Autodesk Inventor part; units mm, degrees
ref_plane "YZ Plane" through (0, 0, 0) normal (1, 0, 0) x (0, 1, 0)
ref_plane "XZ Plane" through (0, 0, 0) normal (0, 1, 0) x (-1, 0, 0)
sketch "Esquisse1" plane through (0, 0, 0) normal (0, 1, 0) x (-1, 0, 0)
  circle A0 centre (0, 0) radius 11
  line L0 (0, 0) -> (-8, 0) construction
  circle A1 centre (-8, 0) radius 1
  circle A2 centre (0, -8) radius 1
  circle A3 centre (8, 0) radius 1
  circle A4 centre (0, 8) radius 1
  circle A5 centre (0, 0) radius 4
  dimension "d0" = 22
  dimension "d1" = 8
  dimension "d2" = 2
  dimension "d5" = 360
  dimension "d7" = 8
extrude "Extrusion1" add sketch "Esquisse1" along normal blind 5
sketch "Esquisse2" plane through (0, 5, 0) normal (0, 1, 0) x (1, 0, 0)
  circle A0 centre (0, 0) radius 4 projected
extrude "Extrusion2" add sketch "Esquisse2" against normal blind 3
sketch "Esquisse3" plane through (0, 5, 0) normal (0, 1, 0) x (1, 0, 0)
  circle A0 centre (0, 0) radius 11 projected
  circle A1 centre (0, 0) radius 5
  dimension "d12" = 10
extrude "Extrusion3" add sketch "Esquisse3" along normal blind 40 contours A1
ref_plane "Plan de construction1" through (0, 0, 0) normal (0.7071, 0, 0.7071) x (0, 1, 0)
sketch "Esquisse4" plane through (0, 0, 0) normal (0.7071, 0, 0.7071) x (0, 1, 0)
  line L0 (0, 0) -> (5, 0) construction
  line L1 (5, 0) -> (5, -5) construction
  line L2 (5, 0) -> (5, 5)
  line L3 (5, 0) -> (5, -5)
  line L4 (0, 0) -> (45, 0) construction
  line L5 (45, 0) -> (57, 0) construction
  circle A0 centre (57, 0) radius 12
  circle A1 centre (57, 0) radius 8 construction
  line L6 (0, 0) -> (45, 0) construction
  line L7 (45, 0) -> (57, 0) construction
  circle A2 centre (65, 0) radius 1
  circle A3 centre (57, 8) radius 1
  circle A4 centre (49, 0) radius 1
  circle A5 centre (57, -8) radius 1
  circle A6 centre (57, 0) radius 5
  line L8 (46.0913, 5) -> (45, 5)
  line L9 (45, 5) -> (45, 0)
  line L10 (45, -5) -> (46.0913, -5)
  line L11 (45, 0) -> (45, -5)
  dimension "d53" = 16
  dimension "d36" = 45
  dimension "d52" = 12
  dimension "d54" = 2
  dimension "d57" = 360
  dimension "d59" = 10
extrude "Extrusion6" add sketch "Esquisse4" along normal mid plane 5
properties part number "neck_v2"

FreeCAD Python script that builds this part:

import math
import FreeCAD as App
import Part
import Sketcher

doc = App.newDocument("Part")
body = doc.addObject("PartDesign::Body", "Body")

# Sketch on XZ plane
sketch1 = body.newObject("Sketcher::SketchObject", "Sketch")
sketch1.AttachmentSupport = (doc.getObject("XZ_Plane"), [""])
sketch1.MapMode = "FlatFace"
sketch1.addGeometry(Part.Circle(App.Vector(0, 0, 0), App.Vector(0, 0, 1), 11), False)
sketch1.addGeometry(Part.Circle(App.Vector(0, -8, 0), App.Vector(0, 0, 1), 1), False)
sketch1.addGeometry(Part.Circle(App.Vector(8, 0, 0), App.Vector(0, 0, 1), 1), False)
sketch1.addGeometry(Part.Circle(App.Vector(0, 0, 0), App.Vector(0, 0, 1), 4), False)
sketch1.addGeometry(Part.Circle(App.Vector(-8, 0, 0), App.Vector(0, 0, 1), 1), False)
sketch1.addGeometry(Part.Circle(App.Vector(0, 8, 0), App.Vector(0, 0, 1), 1), False)
sketch1.addConstraint(Sketcher.Constraint("Coincident", 0, 3, -1, 1))
sketch1.addConstraint(Sketcher.Constraint("Coincident", 3, 3, -1, 1))
sketch1.addConstraint(Sketcher.Constraint("Equal", 1, 2))
sketch1.addConstraint(Sketcher.Constraint("Equal", 2, 4))
sketch1.addConstraint(Sketcher.Constraint("Equal", 4, 5))
sketch1.addConstraint(Sketcher.Constraint("Symmetric", 2, 3, 4, 3, -1, 1))
sketch1.addConstraint(Sketcher.Constraint("Symmetric", 1, 3, 5, 3, -1, 1))
sketch1.addConstraint(Sketcher.Constraint("PointOnObject", 1, 3, -2))
sketch1.addConstraint(Sketcher.Constraint("PointOnObject", 2, 3, -1))
sketch1.addConstraint(Sketcher.Constraint("Diameter", 0, 22.0))
sketch1.addConstraint(Sketcher.Constraint("Diameter", 1, 2.0))
sketch1.addConstraint(Sketcher.Constraint("Diameter", 3, 8.0))
sketch1.addConstraint(Sketcher.Constraint("DistanceY", 1, 3, -1, 1, 8.0))
sketch1.addConstraint(Sketcher.Constraint("DistanceX", -1, 1, 2, 3, 8.0))
pad1 = body.newObject("PartDesign::Pad", "Pad")
pad1.Profile = sketch1
pad1.Length = 5
pad1.Reversed = True

# Sketch on XZ plane
sketch2 = body.newObject("Sketcher::SketchObject", "Sketch001")
sketch2.AttachmentSupport = (doc.getObject("XZ_Plane"), [""])
sketch2.MapMode = "FlatFace"
sketch2.AttachmentOffset = App.Placement(App.Vector(0, 0, -5), App.Rotation())
sketch2.addGeometry(Part.Circle(App.Vector(0, 0, 0), App.Vector(0, 0, 1), 4), False)
sketch2.addConstraint(Sketcher.Constraint("Coincident", 0, 3, -1, 1))
sketch2.addConstraint(Sketcher.Constraint("Diameter", 0, 8.0))
pad2 = body.newObject("PartDesign::Pad", "Pad001")
pad2.Profile = sketch2
pad2.Length = 3

# Sketch on XZ plane
sketch3 = body.newObject("Sketcher::SketchObject", "Sketch002")
sketch3.AttachmentSupport = (doc.getObject("XZ_Plane"), [""])
sketch3.MapMode = "FlatFace"
sketch3.AttachmentOffset = App.Placement(App.Vector(0, 0, -5), App.Rotation())
sketch3.addGeometry(Part.Circle(App.Vector(0, 0, 0), App.Vector(0, 0, 1), 5), False)
sketch3.addConstraint(Sketcher.Constraint("Coincident", 0, 3, -1, 1))
sketch3.addConstraint(Sketcher.Constraint("Diameter", 0, 10.0))
pad3 = body.newObject("PartDesign::Pad", "Pad002")
pad3.Profile = sketch3
pad3.Length = 40
pad3.Reversed = True

# Sketch on an angled plane
sketch4 = body.newObject("Sketcher::SketchObject", "Sketch003")
sketch4.Placement = App.Placement(App.Vector(0, 0, 0), App.Rotation(App.Vector(0, 1, 0), App.Vector(-0.707106781, 0, 0.707106781), App.Vector(0.707106781, 0, 0.707106781), "ZXY"))
sketch4.addGeometry(Part.ArcOfCircle(Part.Circle(App.Vector(57, 0, 0), App.Vector(0, 0, 1), 12), math.radians(-155), math.radians(155)), False)
sketch4.addGeometry(Part.LineSegment(App.Vector(46.1, 5, 0), App.Vector(45, 5, 0)), False)
sketch4.addGeometry(Part.LineSegment(App.Vector(45, 5, 0), App.Vector(45, -5, 0)), False)
sketch4.addGeometry(Part.LineSegment(App.Vector(45, -5, 0), App.Vector(46.1, -5, 0)), False)
sketch4.addGeometry(Part.Circle(App.Vector(57, -8, 0), App.Vector(0, 0, 1), 1), False)
sketch4.addGeometry(Part.Circle(App.Vector(49, 0, 0), App.Vector(0, 0, 1), 1), False)
sketch4.addGeometry(Part.Circle(App.Vector(57, 0, 0), App.Vector(0, 0, 1), 5), False)
sketch4.addGeometry(Part.Circle(App.Vector(65, 0, 0), App.Vector(0, 0, 1), 1), False)
sketch4.addGeometry(Part.Circle(App.Vector(57, 8, 0), App.Vector(0, 0, 1), 1), False)
sketch4.addConstraint(Sketcher.Constraint("Coincident", 0, 2, 1, 1))
sketch4.addConstraint(Sketcher.Constraint("Coincident", 1, 2, 2, 1))
sketch4.addConstraint(Sketcher.Constraint("Coincident", 2, 2, 3, 1))
sketch4.addConstraint(Sketcher.Constraint("Coincident", 3, 2, 0, 1))
sketch4.addConstraint(Sketcher.Constraint("Horizontal", 1))
sketch4.addConstraint(Sketcher.Constraint("Vertical", 2))
sketch4.addConstraint(Sketcher.Constraint("Horizontal", 3))
sketch4.addConstraint(Sketcher.Constraint("Coincident", 6, 3, 0, 3))
sketch4.addConstraint(Sketcher.Constraint("Equal", 4, 5))
sketch4.addConstraint(Sketcher.Constraint("Equal", 5, 7))
sketch4.addConstraint(Sketcher.Constraint("Equal", 7, 8))
sketch4.addConstraint(Sketcher.Constraint("Symmetric", 4, 3, 8, 3, -1))
sketch4.addConstraint(Sketcher.Constraint("Symmetric", 0, 2, 3, 2, -1))
sketch4.addConstraint(Sketcher.Constraint("PointOnObject", 5, 3, -1))
sketch4.addConstraint(Sketcher.Constraint("PointOnObject", 7, 3, -1))
sketch4.addConstraint(Sketcher.Constraint("Vertical", 0, 3, 4, 3))
sketch4.addConstraint(Sketcher.Constraint("Diameter", 4, 2.0))
sketch4.addConstraint(Sketcher.Constraint("Diameter", 6, 10.0))
sketch4.addConstraint(Sketcher.Constraint("Radius", 0, 12.0))
sketch4.addConstraint(Sketcher.Constraint("DistanceY", 2, 2, 2, 1, 10.0))
sketch4.addConstraint(Sketcher.Constraint("DistanceX", -1, 1, 1, 2, 45.0))
sketch4.addConstraint(Sketcher.Constraint("DistanceX", 5, 3, 7, 3, 16.0))
sketch4.addConstraint(Sketcher.Constraint("DistanceY", 4, 3, 8, 3, 16.0))
sketch4.addConstraint(Sketcher.Constraint("DistanceX", 1, 2, 8, 3, 12.0))
sketch4.addConstraint(Sketcher.Constraint("DistanceX", -1, 1, 5, 3, 49.0))
pad4 = body.newObject("PartDesign::Pad", "Pad003")
pad4.Profile = sketch4
pad4.Length = 5
pad4.Midplane = True

doc.recompute()
